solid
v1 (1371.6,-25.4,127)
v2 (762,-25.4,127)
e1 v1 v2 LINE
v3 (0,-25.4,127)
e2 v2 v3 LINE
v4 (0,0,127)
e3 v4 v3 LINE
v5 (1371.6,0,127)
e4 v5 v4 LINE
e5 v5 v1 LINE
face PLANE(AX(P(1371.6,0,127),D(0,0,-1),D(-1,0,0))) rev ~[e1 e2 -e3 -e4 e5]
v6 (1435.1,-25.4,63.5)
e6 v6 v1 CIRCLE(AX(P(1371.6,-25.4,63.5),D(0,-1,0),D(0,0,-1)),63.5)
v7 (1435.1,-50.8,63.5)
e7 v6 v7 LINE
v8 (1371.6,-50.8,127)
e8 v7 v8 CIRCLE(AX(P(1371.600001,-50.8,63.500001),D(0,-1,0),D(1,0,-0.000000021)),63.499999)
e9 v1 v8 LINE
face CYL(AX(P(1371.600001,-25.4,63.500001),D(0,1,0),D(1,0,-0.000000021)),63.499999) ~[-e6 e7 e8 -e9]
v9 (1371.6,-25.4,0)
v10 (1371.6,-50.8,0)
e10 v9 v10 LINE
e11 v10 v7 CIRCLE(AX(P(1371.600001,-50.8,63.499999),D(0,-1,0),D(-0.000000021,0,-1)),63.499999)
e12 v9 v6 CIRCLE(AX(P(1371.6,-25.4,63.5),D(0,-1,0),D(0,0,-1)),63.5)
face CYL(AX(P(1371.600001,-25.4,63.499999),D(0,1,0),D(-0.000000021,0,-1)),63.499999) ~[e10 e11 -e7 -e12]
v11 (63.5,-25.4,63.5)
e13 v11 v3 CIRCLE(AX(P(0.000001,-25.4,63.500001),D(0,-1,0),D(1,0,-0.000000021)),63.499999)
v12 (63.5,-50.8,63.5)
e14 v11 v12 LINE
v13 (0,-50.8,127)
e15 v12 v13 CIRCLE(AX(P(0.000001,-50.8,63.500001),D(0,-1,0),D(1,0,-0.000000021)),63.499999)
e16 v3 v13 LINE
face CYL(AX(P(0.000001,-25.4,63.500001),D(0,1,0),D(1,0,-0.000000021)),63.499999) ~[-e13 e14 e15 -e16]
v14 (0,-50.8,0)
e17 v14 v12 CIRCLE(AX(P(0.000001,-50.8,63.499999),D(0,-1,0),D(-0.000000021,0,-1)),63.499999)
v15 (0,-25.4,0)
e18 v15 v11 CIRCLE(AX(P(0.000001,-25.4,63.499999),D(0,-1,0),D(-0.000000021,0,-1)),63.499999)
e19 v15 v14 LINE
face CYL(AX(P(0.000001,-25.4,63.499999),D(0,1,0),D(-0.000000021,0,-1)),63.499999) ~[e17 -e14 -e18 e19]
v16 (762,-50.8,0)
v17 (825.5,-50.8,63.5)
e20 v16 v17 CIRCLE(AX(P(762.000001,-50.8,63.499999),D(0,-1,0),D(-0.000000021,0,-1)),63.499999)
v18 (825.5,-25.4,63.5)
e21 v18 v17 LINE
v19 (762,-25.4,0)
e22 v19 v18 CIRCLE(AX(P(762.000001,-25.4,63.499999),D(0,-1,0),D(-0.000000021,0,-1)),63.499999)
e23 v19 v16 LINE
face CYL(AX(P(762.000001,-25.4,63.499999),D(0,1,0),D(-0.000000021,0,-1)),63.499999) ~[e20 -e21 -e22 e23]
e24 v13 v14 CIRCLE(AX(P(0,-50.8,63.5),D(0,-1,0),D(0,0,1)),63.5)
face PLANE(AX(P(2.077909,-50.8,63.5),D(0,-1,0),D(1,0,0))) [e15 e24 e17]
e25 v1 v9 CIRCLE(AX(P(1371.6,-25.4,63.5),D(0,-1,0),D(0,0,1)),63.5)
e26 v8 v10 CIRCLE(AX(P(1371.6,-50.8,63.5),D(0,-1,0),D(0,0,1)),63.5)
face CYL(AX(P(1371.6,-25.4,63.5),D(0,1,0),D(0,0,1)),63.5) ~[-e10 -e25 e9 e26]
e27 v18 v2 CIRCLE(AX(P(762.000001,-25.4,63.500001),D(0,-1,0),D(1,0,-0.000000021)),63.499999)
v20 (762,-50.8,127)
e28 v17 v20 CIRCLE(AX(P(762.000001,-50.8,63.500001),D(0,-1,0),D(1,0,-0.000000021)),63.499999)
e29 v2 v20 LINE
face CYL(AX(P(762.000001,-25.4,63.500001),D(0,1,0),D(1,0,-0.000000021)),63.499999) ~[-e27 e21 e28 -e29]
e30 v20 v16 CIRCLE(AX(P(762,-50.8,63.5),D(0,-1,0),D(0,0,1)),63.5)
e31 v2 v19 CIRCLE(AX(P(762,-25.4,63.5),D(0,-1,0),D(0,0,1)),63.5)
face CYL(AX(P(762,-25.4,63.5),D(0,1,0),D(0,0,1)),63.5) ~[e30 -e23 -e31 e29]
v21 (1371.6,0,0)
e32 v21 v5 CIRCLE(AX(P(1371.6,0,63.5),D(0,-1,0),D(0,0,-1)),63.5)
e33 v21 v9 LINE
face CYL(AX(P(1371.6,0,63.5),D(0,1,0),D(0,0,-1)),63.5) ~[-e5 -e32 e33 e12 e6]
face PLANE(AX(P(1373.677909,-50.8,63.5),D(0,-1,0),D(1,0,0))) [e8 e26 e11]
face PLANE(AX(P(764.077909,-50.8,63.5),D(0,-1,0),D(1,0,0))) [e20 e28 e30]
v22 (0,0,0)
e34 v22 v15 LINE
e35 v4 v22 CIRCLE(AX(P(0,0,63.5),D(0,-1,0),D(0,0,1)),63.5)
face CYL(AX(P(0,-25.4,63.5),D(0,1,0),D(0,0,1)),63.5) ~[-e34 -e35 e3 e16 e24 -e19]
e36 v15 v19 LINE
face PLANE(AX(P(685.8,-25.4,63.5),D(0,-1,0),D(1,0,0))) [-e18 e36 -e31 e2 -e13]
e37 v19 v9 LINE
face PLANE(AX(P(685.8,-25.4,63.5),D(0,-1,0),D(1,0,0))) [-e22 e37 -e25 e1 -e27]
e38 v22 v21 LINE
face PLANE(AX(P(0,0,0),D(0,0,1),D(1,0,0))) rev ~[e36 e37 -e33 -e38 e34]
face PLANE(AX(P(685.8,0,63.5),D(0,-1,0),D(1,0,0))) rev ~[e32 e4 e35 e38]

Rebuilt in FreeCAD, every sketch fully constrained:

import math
import FreeCAD as App
import Part
import Sketcher
Q = App.Units.Quantity

doc = App.newDocument("Part")
body = doc.addObject("PartDesign::Body", "Body")

sketch1 = body.newObject("Sketcher::SketchObject", "Sketch")
sketch1.AttachmentSupport = (doc.getObject("XZ_Plane"), [""])
sketch1.MapMode = "FlatFace"
sketch1.addGeometry(Part.ArcOfCircle(Part.Circle(App.Vector(0, 63.5, 0), App.Vector(0, 0, 1), 63.5), math.radians(90), math.radians(270)), False)
sketch1.addGeometry(Part.LineSegment(App.Vector(0, 0, 0), App.Vector(1371.6, 0, 0)), False)
sketch1.addGeometry(Part.ArcOfCircle(Part.Circle(App.Vector(1371.6, 63.5, 0), App.Vector(0, 0, 1), 63.5), math.radians(-90), math.radians(90)), False)
sketch1.addGeometry(Part.LineSegment(App.Vector(1371.6, 127, 0), App.Vector(0, 127, 0)), False)
sketch1.addConstraint(Sketcher.Constraint("Tangent", 0, 2, 1, 1))
sketch1.addConstraint(Sketcher.Constraint("Tangent", 1, 2, 2, 1))
sketch1.addConstraint(Sketcher.Constraint("Tangent", 2, 2, 3, 1))
sketch1.addConstraint(Sketcher.Constraint("Tangent", 3, 2, 0, 1))
sketch1.addConstraint(Sketcher.Constraint("Horizontal", 1))
sketch1.addConstraint(Sketcher.Constraint("Horizontal", 3))
sketch1.addConstraint(Sketcher.Constraint("Coincident", 0, 2, -1, 1))
sketch1.addConstraint(Sketcher.Constraint("Radius", 0, Q("2.5 in")))
sketch1.addConstraint(Sketcher.Constraint("DistanceX", 1, 1, 1, 2, Q("54 in")))
pad1 = body.newObject("PartDesign::Pad", "Pad")
pad1.Profile = sketch1
pad1.Length = Q("1 in")

sketch2 = body.newObject("Sketcher::SketchObject", "Sketch001")
sketch2.AttachmentSupport = (doc.getObject("XZ_Plane"), [""])
sketch2.MapMode = "FlatFace"
sketch2.AttachmentOffset = App.Placement(App.Vector(0, 0, 1 * 25.4), App.Rotation())
sketch2.addGeometry(Part.ArcOfCircle(Part.Circle(App.Vector(0.000001, 63.499999, 0), App.Vector(0, 0, 1), 63.499999), math.radians(-90.000001), math.radians(0.000001)), False)
sketch2.addGeometry(Part.ArcOfCircle(Part.Circle(App.Vector(0.000001, 63.500001, 0), App.Vector(0, 0, 1), 63.499999), math.radians(-0.000001), math.radians(90.000001)), False)
sketch2.addGeometry(Part.ArcOfCircle(Part.Circle(App.Vector(0, 63.5, 0), App.Vector(0, 0, 1), 63.5), math.radians(90), math.radians(270)), False)
sketch2.addGeometry(Part.ArcOfCircle(Part.Circle(App.Vector(762.000001, 63.500001, 0), App.Vector(0, 0, 1), 63.499999), math.radians(-0.000001), math.radians(90.000001)), False)
sketch2.addGeometry(Part.ArcOfCircle(Part.Circle(App.Vector(762, 63.5, 0), App.Vector(0, 0, 1), 63.5), math.radians(90), math.radians(270)), False)
sketch2.addGeometry(Part.ArcOfCircle(Part.Circle(App.Vector(762.000001, 63.499999, 0), App.Vector(0, 0, 1), 63.499999), math.radians(-90.000001), math.radians(0.000001)), False)
sketch2.addGeometry(Part.ArcOfCircle(Part.Circle(App.Vector(1371.600001, 63.500001, 0), App.Vector(0, 0, 1), 63.499999), math.radians(-0.000001), math.radians(90.000001)), False)
sketch2.addGeometry(Part.ArcOfCircle(Part.Circle(App.Vector(1371.6, 63.5, 0), App.Vector(0, 0, 1), 63.5), math.radians(90), math.radians(270)), False)
sketch2.addGeometry(Part.ArcOfCircle(Part.Circle(App.Vector(1371.600001, 63.499999, 0), App.Vector(0, 0, 1), 63.499999), math.radians(-90.000001), math.radians(0.000001)), False)
sketch2.addConstraint(Sketcher.Constraint("Tangent", 0, 2, 1, 1))
sketch2.addConstraint(Sketcher.Constraint("Tangent", 1, 2, 2, 1))
sketch2.addConstraint(Sketcher.Constraint("Tangent", 2, 2, 0, 1))
sketch2.addConstraint(Sketcher.Constraint("Tangent", 3, 2, 4, 1))
sketch2.addConstraint(Sketcher.Constraint("Tangent", 4, 2, 5, 1))
sketch2.addConstraint(Sketcher.Constraint("Tangent", 5, 2, 3, 1))
sketch2.addConstraint(Sketcher.Constraint("Tangent", 6, 2, 7, 1))
sketch2.addConstraint(Sketcher.Constraint("Tangent", 7, 2, 8, 1))
sketch2.addConstraint(Sketcher.Constraint("Tangent", 8, 2, 6, 1))
sketch2.addConstraint(Sketcher.Constraint("Coincident", 2, 2, -1, 1))
sketch2.addConstraint(Sketcher.Constraint("Equal", 2, 3))
sketch2.addConstraint(Sketcher.Constraint("Equal", 5, 6))
sketch2.addConstraint(Sketcher.Constraint("PointOnObject", 0, 3, -2))
sketch2.addConstraint(Sketcher.Constraint("PointOnObject", 1, 2, -2))
sketch2.addConstraint(Sketcher.Constraint("PointOnObject", 4, 2, -1))
sketch2.addConstraint(Sketcher.Constraint("PointOnObject", 7, 2, -1))
sketch2.addConstraint(Sketcher.Constraint("Horizontal", 8, 3, 0, 2))
sketch2.addConstraint(Sketcher.Constraint("Horizontal", 0, 2, 5, 2))
sketch2.addConstraint(Sketcher.Constraint("Horizontal", 5, 2, 8, 2))
sketch2.addConstraint(Sketcher.Constraint("Vertical", 5, 3, 3, 2))
sketch2.addConstraint(Sketcher.Constraint("Vertical", 3, 2, 4, 2))
sketch2.addConstraint(Sketcher.Constraint("Vertical", 8, 3, 6, 2))
sketch2.addConstraint(Sketcher.Constraint("Vertical", 6, 2, 7, 2))
sketch2.addConstraint(Sketcher.Constraint("Radius", 0, Q("2.4999999 in")))
sketch2.addConstraint(Sketcher.Constraint("DistanceX", -1, 1, 3, 3, Q("30.0000001 in")))
sketch2.addConstraint(Sketcher.Constraint("DistanceX", -1, 1, 6, 3, Q("54.0000001 in")))
pad2 = body.newObject("PartDesign::Pad", "Pad001")
pad2.Profile = sketch2
pad2.Length = Q("1 in")

doc.recompute()
